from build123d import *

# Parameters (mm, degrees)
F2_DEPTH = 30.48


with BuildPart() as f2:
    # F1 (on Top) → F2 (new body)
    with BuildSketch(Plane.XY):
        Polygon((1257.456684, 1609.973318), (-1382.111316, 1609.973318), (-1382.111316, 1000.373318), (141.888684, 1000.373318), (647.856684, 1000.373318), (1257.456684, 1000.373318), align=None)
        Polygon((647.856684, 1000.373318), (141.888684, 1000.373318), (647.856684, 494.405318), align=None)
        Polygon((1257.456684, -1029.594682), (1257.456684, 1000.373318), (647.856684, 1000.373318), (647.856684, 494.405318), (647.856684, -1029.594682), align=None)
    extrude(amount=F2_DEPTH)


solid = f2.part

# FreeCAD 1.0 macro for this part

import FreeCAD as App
import Part
import Sketcher
Q = App.Units.Quantity


def add_polygon(sketch, points):
    """Adds a closed chain of lines whose ends are joined by coincident constraints."""
    first, n = sketch.GeometryCount, len(points)
    for a, b in zip(points, points[1:] + points[:1]):
        sketch.addGeometry(Part.LineSegment(App.Vector(*a, 0), App.Vector(*b, 0)), False)
    for i in range(n):
        sketch.addConstraint(Sketcher.Constraint("Coincident", first + i, 2, first + (i + 1) % n, 1))

doc = App.newDocument("Part")
params = doc.addObject("Spreadsheet::Sheet", "Params")
for row, (alias, value) in enumerate([
    ("sketch1_width", "60 in"),
    ("sketch1_width2", "24 in"),
    ("sketch1_width3", "103.92 in"),
    ("pad1_length", "1.2 in"),
], start=1):
    params.set(f"A{row}", alias)
    params.set(f"B{row}", "=" + value)
    params.setAlias(f"B{row}", alias)

body = doc.addObject("PartDesign::Body", "Body")

# Sketch on XY plane
sketch1 = body.newObject("Sketcher::SketchObject", "Sketch")
sketch1.AttachmentSupport = (doc.getObject("XY_Plane"), [""])
sketch1.MapMode = "FlatFace"
add_polygon(sketch1, [(1257.456684, 1609.973318), (-1382.111316, 1609.973318), (-1382.111316, 1000.373318), (141.888684, 1000.373318), (647.856684, 494.405318), (647.856684, -1029.594682), (1257.456684, -1029.594682)])  # lines 0-6
sketch1.addConstraint([
    Sketcher.Constraint("Horizontal", 0),
    Sketcher.Constraint("Vertical", 1),
    Sketcher.Constraint("Horizontal", 2),
    Sketcher.Constraint("Vertical", 4),
    Sketcher.Constraint("Horizontal", 5),
    Sketcher.Constraint("Vertical", 6),
    Sketcher.Constraint("Equal", 5, 1),
    Sketcher.Constraint("Equal", 2, 4),
    Sketcher.Constraint("Equal", 0, 6),
    Sketcher.Constraint("DistanceX", 2, 1, 2, 2, Q("60 in")),
    Sketcher.Constraint("DistanceX", 5, 1, 5, 2, Q("24 in")),
    Sketcher.Constraint("DistanceX", 0, 2, 0, 1, Q("103.92 in")),
    Sketcher.Constraint("DistanceY", -1, 1, 0, 2, Q("1609.973318 mm")),
    Sketcher.Constraint("DistanceX", 0, 2, -1, 1, Q("1382.111316 mm")),
])
sketch1.setExpression("Constraints[16]", "Params.sketch1_width")
sketch1.setExpression("Constraints[17]", "Params.sketch1_width2")
sketch1.setExpression("Constraints[18]", "Params.sketch1_width3")
pad1 = body.newObject("PartDesign::Pad", "Pad")
pad1.Profile = sketch1
pad1.setExpression("Length", "Params.pad1_length")

doc.recompute()
